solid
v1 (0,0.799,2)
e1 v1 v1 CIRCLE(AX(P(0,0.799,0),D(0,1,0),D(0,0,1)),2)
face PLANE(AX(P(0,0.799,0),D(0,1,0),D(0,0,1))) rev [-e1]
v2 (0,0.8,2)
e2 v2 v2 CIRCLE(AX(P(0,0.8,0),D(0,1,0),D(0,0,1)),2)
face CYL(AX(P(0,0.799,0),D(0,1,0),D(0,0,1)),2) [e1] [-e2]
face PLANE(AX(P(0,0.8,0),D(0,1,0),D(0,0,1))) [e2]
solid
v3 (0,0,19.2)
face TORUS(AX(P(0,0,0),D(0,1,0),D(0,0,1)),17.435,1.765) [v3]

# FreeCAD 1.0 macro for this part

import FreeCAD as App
import Part
import Sketcher
from FreeCAD import Vector
Q = App.Units.Quantity

doc = App.newDocument("Part")
body = doc.addObject("PartDesign::Body", "Body")

sketch1 = body.newObject("Sketcher::SketchObject", "Sketch")
sketch1.AttachmentSupport = (doc.getObject("XY_Plane"), [""])
sketch1.MapMode = "FlatFace"
sketch1.addGeometry(Part.Circle(Vector(17.4, 0, 0), Vector(0, 0, 1), 1.8), False)
sketch1.addConstraint([
    Sketcher.Constraint("PointOnObject", 0, 3, -1),
    Sketcher.Constraint("Diameter", 0, Q("3.53 mm")),
    Sketcher.Constraint("DistanceX", -1, 1, 0, 3, Q("17.435 mm")),
])
revolution = body.newObject("PartDesign::Revolution", "Revolution")
revolution.Profile = sketch1
revolution.ReferenceAxis = (sketch1, ["V_Axis"])
revolution.Angle = 360
body2 = doc.addObject("PartDesign::Body", "Body001")

sketch2 = body2.newObject("Sketcher::SketchObject", "Sketch001")
sketch2.AttachmentSupport = (doc.getObject("XZ_Plane001"), [""])
sketch2.MapMode = "FlatFace"
sketch2.AttachmentOffset = App.Placement(Vector(0, 0, -0.8), App.Rotation())
sketch2.addGeometry(Part.Circle(Vector(0, 0, 0), Vector(0, 0, 1), 2), False)
sketch2.addConstraint([
    Sketcher.Constraint("Coincident", 0, 3, -1, 1),
    Sketcher.Constraint("Diameter", 0, Q("4 mm")),
])
pad1 = body2.newObject("PartDesign::Pad", "Pad")
pad1.Profile = sketch2
pad1.Length = 0.001

doc.recompute()
